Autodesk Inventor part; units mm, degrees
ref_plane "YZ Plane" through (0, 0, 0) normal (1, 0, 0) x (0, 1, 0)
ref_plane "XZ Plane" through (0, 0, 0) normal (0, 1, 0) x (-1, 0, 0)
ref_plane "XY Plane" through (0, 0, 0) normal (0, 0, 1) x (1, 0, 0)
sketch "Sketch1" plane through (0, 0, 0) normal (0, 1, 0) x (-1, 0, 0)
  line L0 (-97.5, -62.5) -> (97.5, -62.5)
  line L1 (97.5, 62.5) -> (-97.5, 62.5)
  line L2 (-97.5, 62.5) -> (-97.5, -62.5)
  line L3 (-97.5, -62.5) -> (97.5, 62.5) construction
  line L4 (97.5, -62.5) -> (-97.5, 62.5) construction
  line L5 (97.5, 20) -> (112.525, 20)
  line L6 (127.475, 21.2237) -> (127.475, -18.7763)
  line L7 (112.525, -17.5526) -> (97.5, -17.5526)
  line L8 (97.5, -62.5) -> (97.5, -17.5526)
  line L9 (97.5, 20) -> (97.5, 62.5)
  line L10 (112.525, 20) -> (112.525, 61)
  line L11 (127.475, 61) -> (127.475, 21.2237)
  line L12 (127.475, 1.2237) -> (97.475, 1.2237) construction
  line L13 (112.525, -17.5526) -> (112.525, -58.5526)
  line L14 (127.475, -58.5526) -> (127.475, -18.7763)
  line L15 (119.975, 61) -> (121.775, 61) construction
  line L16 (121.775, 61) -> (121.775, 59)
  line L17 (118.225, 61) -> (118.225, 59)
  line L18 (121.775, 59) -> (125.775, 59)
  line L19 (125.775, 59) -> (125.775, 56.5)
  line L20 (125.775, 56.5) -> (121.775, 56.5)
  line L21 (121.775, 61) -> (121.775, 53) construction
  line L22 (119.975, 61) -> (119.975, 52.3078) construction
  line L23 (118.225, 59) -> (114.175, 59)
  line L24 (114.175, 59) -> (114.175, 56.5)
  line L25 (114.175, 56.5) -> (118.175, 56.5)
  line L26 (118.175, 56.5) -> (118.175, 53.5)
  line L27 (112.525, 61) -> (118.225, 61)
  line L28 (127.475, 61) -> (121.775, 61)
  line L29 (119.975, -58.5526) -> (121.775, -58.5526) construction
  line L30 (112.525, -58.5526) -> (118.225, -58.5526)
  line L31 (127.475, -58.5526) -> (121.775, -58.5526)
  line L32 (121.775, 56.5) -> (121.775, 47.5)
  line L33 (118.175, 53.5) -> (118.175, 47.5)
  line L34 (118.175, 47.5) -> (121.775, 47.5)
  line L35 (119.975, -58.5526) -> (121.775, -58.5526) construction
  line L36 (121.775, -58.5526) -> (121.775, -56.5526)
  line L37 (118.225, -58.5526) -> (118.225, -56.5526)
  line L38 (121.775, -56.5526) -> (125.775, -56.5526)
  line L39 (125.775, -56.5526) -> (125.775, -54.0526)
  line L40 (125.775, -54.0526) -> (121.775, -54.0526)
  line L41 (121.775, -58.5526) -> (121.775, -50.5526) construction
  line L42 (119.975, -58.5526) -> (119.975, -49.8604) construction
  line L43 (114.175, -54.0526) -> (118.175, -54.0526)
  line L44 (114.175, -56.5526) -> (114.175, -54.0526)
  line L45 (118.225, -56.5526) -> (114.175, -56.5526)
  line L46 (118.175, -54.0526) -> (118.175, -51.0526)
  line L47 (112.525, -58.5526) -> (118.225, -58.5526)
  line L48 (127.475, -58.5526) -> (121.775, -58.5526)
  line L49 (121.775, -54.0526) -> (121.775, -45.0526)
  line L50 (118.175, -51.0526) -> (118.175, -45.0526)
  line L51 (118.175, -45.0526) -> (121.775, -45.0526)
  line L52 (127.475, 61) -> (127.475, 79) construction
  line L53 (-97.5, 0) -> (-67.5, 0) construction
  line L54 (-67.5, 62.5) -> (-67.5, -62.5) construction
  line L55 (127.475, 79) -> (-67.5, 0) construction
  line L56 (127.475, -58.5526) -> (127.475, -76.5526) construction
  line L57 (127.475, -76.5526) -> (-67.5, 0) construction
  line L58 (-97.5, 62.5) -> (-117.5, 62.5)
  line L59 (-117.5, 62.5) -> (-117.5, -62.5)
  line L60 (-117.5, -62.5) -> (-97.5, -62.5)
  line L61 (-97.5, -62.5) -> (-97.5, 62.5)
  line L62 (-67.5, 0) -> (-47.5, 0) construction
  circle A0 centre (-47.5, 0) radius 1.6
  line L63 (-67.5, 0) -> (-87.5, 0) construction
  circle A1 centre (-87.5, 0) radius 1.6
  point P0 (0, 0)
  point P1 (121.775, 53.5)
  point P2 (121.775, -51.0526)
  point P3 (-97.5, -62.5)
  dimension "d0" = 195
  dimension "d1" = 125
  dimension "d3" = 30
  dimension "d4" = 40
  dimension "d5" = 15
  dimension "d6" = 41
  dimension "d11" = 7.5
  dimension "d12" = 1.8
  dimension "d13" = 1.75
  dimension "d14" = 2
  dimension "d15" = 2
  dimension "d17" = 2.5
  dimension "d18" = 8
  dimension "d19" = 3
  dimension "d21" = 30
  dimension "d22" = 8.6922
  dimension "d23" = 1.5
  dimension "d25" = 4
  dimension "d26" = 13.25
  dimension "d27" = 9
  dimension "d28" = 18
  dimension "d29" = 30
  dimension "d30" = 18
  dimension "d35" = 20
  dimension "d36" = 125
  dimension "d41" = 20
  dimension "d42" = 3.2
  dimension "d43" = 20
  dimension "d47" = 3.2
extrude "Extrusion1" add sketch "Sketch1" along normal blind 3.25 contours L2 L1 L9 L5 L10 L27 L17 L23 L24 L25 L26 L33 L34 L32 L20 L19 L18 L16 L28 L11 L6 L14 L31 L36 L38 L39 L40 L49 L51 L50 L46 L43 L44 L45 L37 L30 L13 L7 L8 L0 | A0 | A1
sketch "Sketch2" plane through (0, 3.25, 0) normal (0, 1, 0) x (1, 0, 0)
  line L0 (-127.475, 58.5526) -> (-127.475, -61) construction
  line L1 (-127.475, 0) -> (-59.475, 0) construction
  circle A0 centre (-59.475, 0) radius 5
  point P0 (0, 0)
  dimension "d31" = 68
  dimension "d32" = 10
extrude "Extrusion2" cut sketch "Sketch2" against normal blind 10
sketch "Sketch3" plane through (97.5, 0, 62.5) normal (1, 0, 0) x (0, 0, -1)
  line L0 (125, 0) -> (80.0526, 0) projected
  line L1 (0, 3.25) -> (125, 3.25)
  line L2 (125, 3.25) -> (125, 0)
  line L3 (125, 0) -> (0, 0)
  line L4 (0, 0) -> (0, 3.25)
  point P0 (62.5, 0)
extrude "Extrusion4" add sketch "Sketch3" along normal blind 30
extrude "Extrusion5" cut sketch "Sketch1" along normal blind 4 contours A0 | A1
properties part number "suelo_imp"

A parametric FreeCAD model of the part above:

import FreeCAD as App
import Part
import Sketcher

V = App.Vector
Q = App.Units.Quantity


def add_polygon(sketch, points):
    """Adds a closed chain of lines whose ends are joined by coincident constraints."""
    first, n = sketch.GeometryCount, len(points)
    for a, b in zip(points, points[1:] + points[:1]):
        sketch.addGeometry(Part.LineSegment(App.Vector(*a, 0), App.Vector(*b, 0)), False)
    for i in range(n):
        sketch.addConstraint(Sketcher.Constraint("Coincident", first + i, 2, first + (i + 1) % n, 1))

doc = App.newDocument("Part")
body = doc.addObject("PartDesign::Body", "Body")

sketch1 = body.newObject("Sketcher::SketchObject", "Sketch")
sketch1.AttachmentSupport = (doc.getObject("XZ_Plane"), [""])
sketch1.MapMode = "FlatFace"
add_polygon(sketch1, [(97.5, 62.5), (97.5, -62.5), (-97.5, -62.5), (-97.5, -17.5526), (-112.525, -17.5526), (-112.525, -58.5526), (-118.225, -58.5526), (-118.225, -56.5526), (-114.175, -56.5526), (-114.175, -54.0526), (-118.175, -54.0526), (-118.175, -45.0526), (-121.775, -45.0526), (-121.775, -54.0526), (-125.775, -54.0526), (-125.775, -56.5526), (-121.775, -56.5526), (-121.775, -58.5526), (-127.475, -58.5526), (-127.475, 61), (-121.775, 61), (-121.775, 59), (-125.775, 59), (-125.775, 56.5), (-121.775, 56.5), (-121.775, 47.5), (-118.175, 47.5), (-118.175, 56.5), (-114.175, 56.5), (-114.175, 59), (-118.225, 59), (-118.225, 61), (-112.525, 61), (-112.525, 20), (-97.5, 20), (-97.5, 62.5)])
sketch1.addConstraint(Sketcher.Constraint("Vertical", 0))
sketch1.addConstraint(Sketcher.Constraint("Horizontal", 1))
sketch1.addConstraint(Sketcher.Constraint("Vertical", 2))
sketch1.addConstraint(Sketcher.Constraint("Horizontal", 3))
sketch1.addConstraint(Sketcher.Constraint("Vertical", 4))
sketch1.addConstraint(Sketcher.Constraint("Horizontal", 5))
sketch1.addConstraint(Sketcher.Constraint("Vertical", 6))
sketch1.addConstraint(Sketcher.Constraint("Horizontal", 7))
sketch1.addConstraint(Sketcher.Constraint("Vertical", 8))
sketch1.addConstraint(Sketcher.Constraint("Horizontal", 9))
sketch1.addConstraint(Sketcher.Constraint("Vertical", 10))
sketch1.addConstraint(Sketcher.Constraint("Horizontal", 11))
sketch1.addConstraint(Sketcher.Constraint("Vertical", 12))
sketch1.addConstraint(Sketcher.Constraint("Horizontal", 13))
sketch1.addConstraint(Sketcher.Constraint("Vertical", 14))
sketch1.addConstraint(Sketcher.Constraint("Horizontal", 15))
sketch1.addConstraint(Sketcher.Constraint("Vertical", 16))
sketch1.addConstraint(Sketcher.Constraint("Horizontal", 17))
sketch1.addConstraint(Sketcher.Constraint("Vertical", 18))
sketch1.addConstraint(Sketcher.Constraint("Horizontal", 19))
sketch1.addConstraint(Sketcher.Constraint("Vertical", 20))
sketch1.addConstraint(Sketcher.Constraint("Horizontal", 21))
sketch1.addConstraint(Sketcher.Constraint("Vertical", 22))
sketch1.addConstraint(Sketcher.Constraint("Horizontal", 23))
sketch1.addConstraint(Sketcher.Constraint("Vertical", 24))
sketch1.addConstraint(Sketcher.Constraint("Horizontal", 25))
sketch1.addConstraint(Sketcher.Constraint("Vertical", 26))
sketch1.addConstraint(Sketcher.Constraint("Horizontal", 27))
sketch1.addConstraint(Sketcher.Constraint("Vertical", 28))
sketch1.addConstraint(Sketcher.Constraint("Horizontal", 29))
sketch1.addConstraint(Sketcher.Constraint("Vertical", 30))
sketch1.addConstraint(Sketcher.Constraint("Horizontal", 31))
sketch1.addConstraint(Sketcher.Constraint("Vertical", 32))
sketch1.addConstraint(Sketcher.Constraint("Horizontal", 33))
sketch1.addConstraint(Sketcher.Constraint("Vertical", 34))
sketch1.addConstraint(Sketcher.Constraint("Horizontal", 35))
sketch1.addConstraint(Sketcher.Constraint("Symmetric", 0, 2, 34, 2, -1, 1))
sketch1.addConstraint(Sketcher.Constraint("Horizontal", 9, 2, 12, 2))
sketch1.addConstraint(Sketcher.Constraint("Horizontal", 7, 2, 14, 2))
sketch1.addConstraint(Sketcher.Constraint("Horizontal", 5, 2, 16, 2))
sketch1.addConstraint(Sketcher.Constraint("Horizontal", 23, 2, 26, 2))
sketch1.addConstraint(Sketcher.Constraint("Horizontal", 21, 2, 28, 2))
sketch1.addConstraint(Sketcher.Constraint("Horizontal", 19, 2, 30, 2))
sketch1.addConstraint(Sketcher.Constraint("Vertical", 12, 2, 15, 2))
sketch1.addConstraint(Sketcher.Constraint("Vertical", 16, 2, 19, 2))
sketch1.addConstraint(Sketcher.Constraint("Vertical", 14, 2, 21, 2))
sketch1.addConstraint(Sketcher.Constraint("Vertical", 20, 2, 23, 2))
sketch1.addConstraint(Sketcher.Constraint("Vertical", 10, 2, 25, 2))
sketch1.addConstraint(Sketcher.Constraint("Vertical", 8, 2, 27, 2))
sketch1.addConstraint(Sketcher.Constraint("Vertical", 6, 2, 29, 2))
sketch1.addConstraint(Sketcher.Constraint("Vertical", 4, 2, 31, 2))
sketch1.addConstraint(Sketcher.Constraint("Vertical", 2, 2, 33, 2))
sketch1.addConstraint(Sketcher.Constraint("Equal", 9, 13))
sketch1.addConstraint(Sketcher.Constraint("Equal", 5, 17))
sketch1.addConstraint(Sketcher.Constraint("Equal", 16, 20))
sketch1.addConstraint(Sketcher.Constraint("Equal", 14, 22))
sketch1.addConstraint(Sketcher.Constraint("Equal", 12, 24))
sketch1.addConstraint(Sketcher.Constraint("Equal", 4, 32))
sketch1.addConstraint(Sketcher.Constraint("DistanceX", 1, 2, 1, 1, Q("195 mm")))
sketch1.addConstraint(Sketcher.Constraint("DistanceX", 9, 2, 9, 1, Q("4 mm")))
sketch1.addConstraint(Sketcher.Constraint("DistanceY", 0, 2, 0, 1, Q("125 mm")))
sketch1.addConstraint(Sketcher.Constraint("DistanceY", 4, 2, 4, 1, Q("41 mm")))
sketch1.addConstraint(Sketcher.Constraint("DistanceY", 6, 1, 6, 2, Q("2 mm")))
sketch1.addConstraint(Sketcher.Constraint("DistanceY", 10, 1, 10, 2, Q("9 mm")))
sketch1.addConstraint(Sketcher.Constraint("DistanceY", 8, 1, 8, 2, Q("2.5 mm")))
sketch1.addConstraint(Sketcher.Constraint("DistanceY", -1, 1, 32, 2, Q("20 mm")))
sketch1.addConstraint(Sketcher.Constraint("DistanceX", 21, 2, 3, 2, Q("13.25 mm")))
sketch1.addConstraint(Sketcher.Constraint("DistanceX", 5, 2, 5, 1, Q("5.7 mm")))
sketch1.addConstraint(Sketcher.Constraint("DistanceX", 11, 2, 11, 1, Q("3.6 mm")))
sketch1.addConstraint(Sketcher.Constraint("DistanceX", 3, 2, 3, 1, Q("15.025 mm")))
sketch1.addConstraint(Sketcher.Constraint("DistanceY", 2, 1, 2, 2, Q("44.9474 mm")))
pad1 = body.newObject("PartDesign::Pad", "Pad")
pad1.Profile = sketch1
pad1.Length = 3.25
pad1.Reversed = True

sketch2 = body.newObject("Sketcher::SketchObject", "Sketch001")
sketch2.AttachmentSupport = (doc.getObject("XZ_Plane"), [""])
sketch2.MapMode = "FlatFace"
sketch2.AttachmentOffset = App.Placement(V(0, 0, -3.25), App.Rotation())
sketch2.addGeometry(Part.Circle(V(-59.475, 0, 0), V(0, 0, 1), 5), False)
sketch2.addConstraint(Sketcher.Constraint("PointOnObject", 0, 3, -1))
sketch2.addConstraint(Sketcher.Constraint("Diameter", 0, Q("10 mm")))
sketch2.addConstraint(Sketcher.Constraint("DistanceX", 0, 3, -1, 1, Q("59.475 mm")))
pocket1 = body.newObject("PartDesign::Pocket", "Pocket")
pocket1.Profile = sketch2
pocket1.Length = 10
pocket1.Reversed = True

sketch3 = body.newObject("Sketcher::SketchObject", "Sketch002")
sketch3.AttachmentSupport = (doc.getObject("YZ_Plane"), [""])
sketch3.MapMode = "FlatFace"
sketch3.AttachmentOffset = App.Placement(V(0, 0, 97.5), App.Rotation())
add_polygon(sketch3, [(0, 62.5), (0, -62.5), (3.25, -62.5), (3.25, 62.5)])
sketch3.addConstraint(Sketcher.Constraint("Vertical", 0))
sketch3.addConstraint(Sketcher.Constraint("Horizontal", 1))
sketch3.addConstraint(Sketcher.Constraint("Vertical", 2))
sketch3.addConstraint(Sketcher.Constraint("Horizontal", 3))
sketch3.addConstraint(Sketcher.Constraint("Symmetric", 0, 2, 3, 2, -1, 1))
sketch3.addConstraint(Sketcher.Constraint("DistanceY", 0, 2, 0, 1, Q("125 mm")))
sketch3.addConstraint(Sketcher.Constraint("DistanceX", 1, 1, 1, 2, Q("3.25 mm")))
pad2 = body.newObject("PartDesign::Pad", "Pad001")
pad2.Profile = sketch3
pad2.Length = 30

sketch4 = body.newObject("Sketcher::SketchObject", "Sketch003")
sketch4.AttachmentSupport = (doc.getObject("XZ_Plane"), [""])
sketch4.MapMode = "FlatFace"
sketch4.addGeometry(Part.Circle(V(47.5, 0, 0), V(0, 0, 1), 1.6), False)
sketch4.addGeometry(Part.Circle(V(87.5, 0, 0), V(0, 0, 1), 1.6), False)
sketch4.addConstraint(Sketcher.Constraint("Equal", 0, 1))
sketch4.addConstraint(Sketcher.Constraint("PointOnObject", 0, 3, -1))
sketch4.addConstraint(Sketcher.Constraint("PointOnObject", 1, 3, -1))
sketch4.addConstraint(Sketcher.Constraint("Diameter", 0, Q("3.2 mm")))
sketch4.addConstraint(Sketcher.Constraint("DistanceX", 0, 3, 1, 3, Q("40 mm")))
sketch4.addConstraint(Sketcher.Constraint("DistanceX", -1, 1, 0, 3, Q("47.5 mm")))
pocket2 = body.newObject("PartDesign::Pocket", "Pocket001")
pocket2.Profile = sketch4
pocket2.Length = 4

doc.recompute()
